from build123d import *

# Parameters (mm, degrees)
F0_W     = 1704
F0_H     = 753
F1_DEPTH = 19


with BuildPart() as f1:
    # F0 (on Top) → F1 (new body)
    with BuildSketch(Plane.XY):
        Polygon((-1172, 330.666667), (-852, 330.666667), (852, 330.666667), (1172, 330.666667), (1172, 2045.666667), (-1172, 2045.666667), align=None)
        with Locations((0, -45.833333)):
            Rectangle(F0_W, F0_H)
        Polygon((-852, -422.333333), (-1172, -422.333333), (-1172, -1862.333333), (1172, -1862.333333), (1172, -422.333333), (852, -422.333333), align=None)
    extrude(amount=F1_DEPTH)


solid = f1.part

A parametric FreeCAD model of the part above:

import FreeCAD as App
import Part
import Sketcher

V = App.Vector

doc = App.newDocument("Part")
body = doc.addObject("PartDesign::Body", "Body")

# Sketch on XY plane
sketch1 = body.newObject("Sketcher::SketchObject", "Sketch")
sketch1.AttachmentSupport = (doc.getObject("XY_Plane"), [""])
sketch1.MapMode = "FlatFace"
sketch1.addGeometry([
    Part.LineSegment(V(-1172, 331, 0), V(-852, 331, 0)),  # 0
    Part.LineSegment(V(-852, 331, 0), V(-852, -422, 0)),  # 1
    Part.LineSegment(V(-852, -422, 0), V(-1172, -422, 0)),  # 2
    Part.LineSegment(V(-1172, -422, 0), V(-1172, -1862, 0)),  # 3
    Part.LineSegment(V(-1172, -1862, 0), V(1172, -1862, 0)),  # 4
    Part.LineSegment(V(1172, -1862, 0), V(1172, -422, 0)),  # 5
    Part.LineSegment(V(1172, -422, 0), V(852, -422, 0)),  # 6
    Part.LineSegment(V(852, -422, 0), V(852, 331, 0)),  # 7
    Part.LineSegment(V(852, 331, 0), V(1172, 331, 0)),  # 8
    Part.LineSegment(V(1172, 331, 0), V(1172, 2046, 0)),  # 9
    Part.LineSegment(V(1172, 2046, 0), V(-1172, 2046, 0)),  # 10
    Part.LineSegment(V(-1172, 2046, 0), V(-1172, 331, 0)),  # 11
], False)
sketch1.addConstraint([
    Sketcher.Constraint("Coincident", 0, 2, 1, 1),
    Sketcher.Constraint("Coincident", 1, 2, 2, 1),
    Sketcher.Constraint("Coincident", 2, 2, 3, 1),
    Sketcher.Constraint("Coincident", 3, 2, 4, 1),
    Sketcher.Constraint("Coincident", 4, 2, 5, 1),
    Sketcher.Constraint("Coincident", 5, 2, 6, 1),
    Sketcher.Constraint("Coincident", 6, 2, 7, 1),
    Sketcher.Constraint("Coincident", 7, 2, 8, 1),
    Sketcher.Constraint("Coincident", 8, 2, 9, 1),
    Sketcher.Constraint("Coincident", 9, 2, 10, 1),
    Sketcher.Constraint("Coincident", 10, 2, 11, 1),
    Sketcher.Constraint("Coincident", 11, 2, 0, 1),
    Sketcher.Constraint("Horizontal", 0),
    Sketcher.Constraint("Vertical", 1),
    Sketcher.Constraint("Horizontal", 2),
    Sketcher.Constraint("Vertical", 3),
    Sketcher.Constraint("Horizontal", 4),
    Sketcher.Constraint("Vertical", 5),
    Sketcher.Constraint("Horizontal", 6),
    Sketcher.Constraint("Vertical", 7),
    Sketcher.Constraint("Horizontal", 8),
    Sketcher.Constraint("Vertical", 9),
    Sketcher.Constraint("Horizontal", 10),
    Sketcher.Constraint("Vertical", 11),
    Sketcher.Constraint("Symmetric", 2, 2, 5, 2, -2),
    Sketcher.Constraint("Symmetric", 0, 2, 7, 2, -2),
    Sketcher.Constraint("Vertical", 5, 2, 8, 2),
    Sketcher.Constraint("Vertical", 3, 2, 10, 2),
    Sketcher.Constraint("DistanceX", 0, 1, 0, 2, 320.0),
    Sketcher.Constraint("DistanceX", 4, 1, 4, 2, 2344.0),
    Sketcher.Constraint("DistanceY", 1, 2, 1, 1, 753.0),
    Sketcher.Constraint("DistanceY", 3, 2, 3, 1, 1440.0),
    Sketcher.Constraint("DistanceY", 9, 1, 9, 2, 1715.0),
    Sketcher.Constraint("DistanceY", -1, 1, 0, 2, 330.666667),
])
pad1 = body.newObject("PartDesign::Pad", "Pad")
pad1.Profile = sketch1
pad1.Length = 19

doc.recompute()
